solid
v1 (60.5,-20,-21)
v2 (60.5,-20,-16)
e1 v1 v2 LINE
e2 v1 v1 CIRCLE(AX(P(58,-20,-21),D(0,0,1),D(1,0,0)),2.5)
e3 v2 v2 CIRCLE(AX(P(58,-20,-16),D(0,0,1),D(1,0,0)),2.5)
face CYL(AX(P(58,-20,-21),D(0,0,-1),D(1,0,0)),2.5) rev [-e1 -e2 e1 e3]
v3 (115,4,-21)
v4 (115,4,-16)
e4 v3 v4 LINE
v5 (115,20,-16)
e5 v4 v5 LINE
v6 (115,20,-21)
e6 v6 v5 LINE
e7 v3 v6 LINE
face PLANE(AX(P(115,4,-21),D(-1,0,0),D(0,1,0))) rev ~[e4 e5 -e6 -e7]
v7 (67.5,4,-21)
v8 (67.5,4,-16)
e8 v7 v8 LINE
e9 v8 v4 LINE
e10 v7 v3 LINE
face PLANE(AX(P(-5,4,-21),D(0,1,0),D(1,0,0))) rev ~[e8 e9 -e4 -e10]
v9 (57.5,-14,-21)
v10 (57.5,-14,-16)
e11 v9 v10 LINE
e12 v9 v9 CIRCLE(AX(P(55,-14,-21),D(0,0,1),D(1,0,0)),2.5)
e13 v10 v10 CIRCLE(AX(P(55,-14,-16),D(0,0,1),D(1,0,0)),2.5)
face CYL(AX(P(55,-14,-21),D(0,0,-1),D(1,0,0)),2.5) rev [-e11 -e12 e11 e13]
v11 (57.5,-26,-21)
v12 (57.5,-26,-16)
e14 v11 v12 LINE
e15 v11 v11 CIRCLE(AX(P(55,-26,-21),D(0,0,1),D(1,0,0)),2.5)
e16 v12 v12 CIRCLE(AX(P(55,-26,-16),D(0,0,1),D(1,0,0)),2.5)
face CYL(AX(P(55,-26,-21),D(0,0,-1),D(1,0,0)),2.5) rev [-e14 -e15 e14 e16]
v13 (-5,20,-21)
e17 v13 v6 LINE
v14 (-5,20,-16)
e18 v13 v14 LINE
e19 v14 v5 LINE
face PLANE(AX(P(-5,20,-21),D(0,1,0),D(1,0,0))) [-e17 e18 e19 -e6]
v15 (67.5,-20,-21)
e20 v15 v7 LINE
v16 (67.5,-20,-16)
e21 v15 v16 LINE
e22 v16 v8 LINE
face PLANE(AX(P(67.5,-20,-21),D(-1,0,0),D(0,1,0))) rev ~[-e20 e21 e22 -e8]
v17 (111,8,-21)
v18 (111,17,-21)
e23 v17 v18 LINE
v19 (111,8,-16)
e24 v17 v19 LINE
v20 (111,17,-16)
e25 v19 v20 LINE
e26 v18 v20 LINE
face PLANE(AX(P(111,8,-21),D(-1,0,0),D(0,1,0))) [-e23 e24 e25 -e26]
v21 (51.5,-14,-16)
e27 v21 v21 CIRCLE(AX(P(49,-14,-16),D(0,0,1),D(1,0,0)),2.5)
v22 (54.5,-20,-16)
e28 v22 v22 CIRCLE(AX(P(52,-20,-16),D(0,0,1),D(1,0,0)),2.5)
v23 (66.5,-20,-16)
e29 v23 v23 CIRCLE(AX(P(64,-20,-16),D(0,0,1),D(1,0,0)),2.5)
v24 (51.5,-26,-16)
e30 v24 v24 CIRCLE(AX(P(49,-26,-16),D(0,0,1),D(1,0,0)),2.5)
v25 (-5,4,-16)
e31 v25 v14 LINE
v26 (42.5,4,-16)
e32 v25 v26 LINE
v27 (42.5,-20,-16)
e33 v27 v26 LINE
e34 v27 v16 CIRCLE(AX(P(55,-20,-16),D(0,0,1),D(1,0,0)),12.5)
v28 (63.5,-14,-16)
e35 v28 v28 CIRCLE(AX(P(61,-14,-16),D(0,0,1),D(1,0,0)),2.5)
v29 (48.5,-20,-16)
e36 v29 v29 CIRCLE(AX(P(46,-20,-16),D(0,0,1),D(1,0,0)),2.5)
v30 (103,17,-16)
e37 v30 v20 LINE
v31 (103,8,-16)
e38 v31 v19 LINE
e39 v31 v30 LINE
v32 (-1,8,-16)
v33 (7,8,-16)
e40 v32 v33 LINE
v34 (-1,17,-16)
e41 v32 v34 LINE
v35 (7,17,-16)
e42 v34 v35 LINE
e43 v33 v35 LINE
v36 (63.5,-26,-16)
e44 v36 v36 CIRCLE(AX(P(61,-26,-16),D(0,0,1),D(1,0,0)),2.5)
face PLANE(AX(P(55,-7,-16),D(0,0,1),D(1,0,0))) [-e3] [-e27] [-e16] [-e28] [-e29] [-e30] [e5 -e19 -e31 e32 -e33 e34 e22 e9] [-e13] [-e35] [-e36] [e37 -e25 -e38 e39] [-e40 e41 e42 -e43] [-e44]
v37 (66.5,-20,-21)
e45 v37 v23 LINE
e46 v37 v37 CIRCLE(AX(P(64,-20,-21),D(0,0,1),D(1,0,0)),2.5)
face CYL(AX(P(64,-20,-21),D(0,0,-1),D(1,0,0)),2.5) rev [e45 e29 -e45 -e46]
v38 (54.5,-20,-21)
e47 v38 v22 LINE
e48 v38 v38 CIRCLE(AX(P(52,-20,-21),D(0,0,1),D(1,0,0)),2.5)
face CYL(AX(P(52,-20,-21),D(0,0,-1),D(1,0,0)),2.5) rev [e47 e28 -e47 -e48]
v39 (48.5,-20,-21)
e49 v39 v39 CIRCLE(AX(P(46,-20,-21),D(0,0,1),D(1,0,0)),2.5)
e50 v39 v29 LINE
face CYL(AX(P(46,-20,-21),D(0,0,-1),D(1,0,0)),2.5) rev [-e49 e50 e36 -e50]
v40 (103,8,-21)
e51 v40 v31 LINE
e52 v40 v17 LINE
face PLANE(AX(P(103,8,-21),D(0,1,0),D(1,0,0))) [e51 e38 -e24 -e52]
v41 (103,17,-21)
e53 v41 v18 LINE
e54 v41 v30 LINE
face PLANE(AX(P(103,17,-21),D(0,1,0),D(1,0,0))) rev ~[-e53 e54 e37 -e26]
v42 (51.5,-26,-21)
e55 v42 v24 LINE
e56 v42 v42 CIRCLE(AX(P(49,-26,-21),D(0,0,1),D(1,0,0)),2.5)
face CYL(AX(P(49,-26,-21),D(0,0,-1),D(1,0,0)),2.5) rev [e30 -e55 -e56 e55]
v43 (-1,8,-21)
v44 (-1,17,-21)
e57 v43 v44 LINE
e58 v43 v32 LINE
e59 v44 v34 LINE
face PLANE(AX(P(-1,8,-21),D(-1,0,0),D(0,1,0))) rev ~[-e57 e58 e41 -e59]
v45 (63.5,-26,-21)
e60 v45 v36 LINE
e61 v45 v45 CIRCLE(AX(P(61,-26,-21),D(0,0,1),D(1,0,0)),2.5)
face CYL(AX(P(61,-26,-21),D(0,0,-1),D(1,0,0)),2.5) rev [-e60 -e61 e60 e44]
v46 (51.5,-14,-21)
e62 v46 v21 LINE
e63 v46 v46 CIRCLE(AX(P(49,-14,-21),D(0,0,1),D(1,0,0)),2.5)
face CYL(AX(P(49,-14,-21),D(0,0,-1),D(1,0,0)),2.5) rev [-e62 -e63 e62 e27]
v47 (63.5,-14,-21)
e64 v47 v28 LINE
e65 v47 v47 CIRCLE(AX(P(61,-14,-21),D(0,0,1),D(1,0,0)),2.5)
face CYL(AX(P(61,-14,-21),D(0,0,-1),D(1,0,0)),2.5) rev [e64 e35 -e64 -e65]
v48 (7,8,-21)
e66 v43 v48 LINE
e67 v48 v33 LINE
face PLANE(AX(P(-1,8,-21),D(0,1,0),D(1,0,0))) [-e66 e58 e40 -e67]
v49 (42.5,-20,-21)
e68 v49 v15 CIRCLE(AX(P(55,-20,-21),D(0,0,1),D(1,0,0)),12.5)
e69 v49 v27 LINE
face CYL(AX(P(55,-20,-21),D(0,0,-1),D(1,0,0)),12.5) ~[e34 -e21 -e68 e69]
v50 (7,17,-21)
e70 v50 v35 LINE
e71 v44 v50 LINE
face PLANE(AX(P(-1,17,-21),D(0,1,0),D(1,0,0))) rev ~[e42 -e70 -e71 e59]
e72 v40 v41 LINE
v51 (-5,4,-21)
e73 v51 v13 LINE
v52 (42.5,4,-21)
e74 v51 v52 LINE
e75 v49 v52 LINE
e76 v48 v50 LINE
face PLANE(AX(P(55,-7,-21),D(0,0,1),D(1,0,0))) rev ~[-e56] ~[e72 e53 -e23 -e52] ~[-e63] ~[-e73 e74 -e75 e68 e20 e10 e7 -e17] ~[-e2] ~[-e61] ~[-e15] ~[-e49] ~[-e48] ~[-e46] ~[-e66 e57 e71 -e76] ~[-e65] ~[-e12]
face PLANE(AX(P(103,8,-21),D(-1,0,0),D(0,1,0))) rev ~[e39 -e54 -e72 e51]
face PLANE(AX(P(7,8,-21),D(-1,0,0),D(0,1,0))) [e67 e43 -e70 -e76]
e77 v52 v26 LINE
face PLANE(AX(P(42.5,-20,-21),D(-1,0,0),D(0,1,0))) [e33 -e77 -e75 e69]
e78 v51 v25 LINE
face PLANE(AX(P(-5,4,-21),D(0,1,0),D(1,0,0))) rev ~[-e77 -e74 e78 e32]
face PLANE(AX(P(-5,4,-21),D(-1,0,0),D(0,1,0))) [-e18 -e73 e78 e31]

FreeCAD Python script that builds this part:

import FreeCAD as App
import Part
import Sketcher

V = App.Vector
Q = App.Units.Quantity


def add_polygon(sketch, points):
    """Adds a closed chain of lines whose ends are joined by coincident constraints."""
    first, n = sketch.GeometryCount, len(points)
    for a, b in zip(points, points[1:] + points[:1]):
        sketch.addGeometry(Part.LineSegment(App.Vector(*a, 0), App.Vector(*b, 0)), False)
    for i in range(n):
        sketch.addConstraint(Sketcher.Constraint("Coincident", first + i, 2, first + (i + 1) % n, 1))

doc = App.newDocument("Part")
body = doc.addObject("PartDesign::Body", "Body")

# Sketch on XY plane
sketch1 = doc.addObject("Sketcher::SketchObject", "Sketch")
body.addObject(sketch1)
sketch1.AttachmentSupport = (doc.XY_Plane, [""])
sketch1.MapMode = "FlatFace"
add_polygon(sketch1, [(103, 17), (103, 8), (111, 8), (111, 17)])  # lines 0-3
sketch1.addConstraint([
    Sketcher.Constraint("Vertical", 0),
    Sketcher.Constraint("Horizontal", 1),
    Sketcher.Constraint("Vertical", 2),
    Sketcher.Constraint("Horizontal", 3),
    Sketcher.Constraint("DistanceX", 1, 1, 1, 2, Q("8 mm")),
    Sketcher.Constraint("DistanceY", 0, 2, 0, 1, Q("9 mm")),
    Sketcher.Constraint("DistanceX", -1, 1, 0, 2, Q("103 mm")),
    Sketcher.Constraint("DistanceY", -1, 1, 0, 2, Q("8 mm")),
])
pad1 = doc.addObject("PartDesign::Pad", "Pad")
body.addObject(pad1)
pad1.Profile = sketch1
pad1.Length = 5
body2 = doc.addObject("PartDesign::Body", "Body001")

# Sketch on XY plane
sketch2 = doc.addObject("Sketcher::SketchObject", "Sketch001")
body2.addObject(sketch2)
sketch2.AttachmentSupport = (doc.getObject("XY_Plane001"), [""])
sketch2.MapMode = "FlatFace"
add_polygon(sketch2, [(-1, 17), (-1, 8), (7, 8), (7, 17)])  # lines 0-3
sketch2.addConstraint([
    Sketcher.Constraint("Vertical", 0),
    Sketcher.Constraint("Horizontal", 1),
    Sketcher.Constraint("Vertical", 2),
    Sketcher.Constraint("Horizontal", 3),
    Sketcher.Constraint("DistanceX", 1, 1, 1, 2, Q("8 mm")),
    Sketcher.Constraint("DistanceY", 0, 2, 0, 1, Q("9 mm")),
    Sketcher.Constraint("DistanceX", 0, 2, -1, 1, Q("1 mm")),
    Sketcher.Constraint("DistanceY", -1, 1, 0, 2, Q("8 mm")),
])
pad2 = doc.addObject("PartDesign::Pad", "Pad001")
body2.addObject(pad2)
pad2.Profile = sketch2
pad2.Length = 5
body3 = doc.addObject("PartDesign::Body", "Body002")

# Sketch on XY plane
sketch3 = doc.addObject("Sketcher::SketchObject", "Sketch002")
body3.addObject(sketch3)
sketch3.AttachmentSupport = (doc.getObject("XY_Plane002"), [""])
sketch3.MapMode = "FlatFace"
sketch3.addGeometry(Part.Circle(V(6, -6, 0), V(0, 0, 1), 2.5), False)
sketch3.addConstraint([
    Sketcher.Constraint("Diameter", 0, Q("5 mm")),
    Sketcher.Constraint("DistanceX", -1, 1, 0, 3, Q("6 mm")),
    Sketcher.Constraint("DistanceY", 0, 3, -1, 1, Q("6 mm")),
])
pad3 = doc.addObject("PartDesign::Pad", "Pad002")
body3.addObject(pad3)
pad3.Profile = sketch3
pad3.Length = 5
body4 = doc.addObject("PartDesign::Body", "Body003")

# Sketch on XY plane
sketch4 = doc.addObject("Sketcher::SketchObject", "Sketch003")
body4.addObject(sketch4)
sketch4.AttachmentSupport = (doc.getObject("XY_Plane003"), [""])
sketch4.MapMode = "FlatFace"
sketch4.addGeometry(Part.Circle(V(-6, -6, 0), V(0, 0, 1), 2.5), False)
sketch4.addConstraint([
    Sketcher.Constraint("Diameter", 0, Q("5 mm")),
    Sketcher.Constraint("DistanceX", 0, 3, -1, 1, Q("6 mm")),
    Sketcher.Constraint("DistanceY", 0, 3, -1, 1, Q("6 mm")),
])
pad4 = doc.addObject("PartDesign::Pad", "Pad003")
body4.addObject(pad4)
pad4.Profile = sketch4
pad4.Length = 5
body5 = doc.addObject("PartDesign::Body", "Body004")

# Sketch on XY plane
sketch5 = doc.addObject("Sketcher::SketchObject", "Sketch004")
body5.addObject(sketch5)
sketch5.AttachmentSupport = (doc.getObject("XY_Plane004"), [""])
sketch5.MapMode = "FlatFace"
sketch5.addGeometry(Part.Circle(V(0, -6, 0), V(0, 0, 1), 2.5), False)
sketch5.addConstraint([
    Sketcher.Constraint("PointOnObject", 0, 3, -2),
    Sketcher.Constraint("Diameter", 0, Q("5 mm")),
    Sketcher.Constraint("DistanceY", 0, 3, -1, 1, Q("6 mm")),
])
pad5 = doc.addObject("PartDesign::Pad", "Pad004")
body5.addObject(pad5)
pad5.Profile = sketch5
pad5.Length = 5
body6 = doc.addObject("PartDesign::Body", "Body005")

# Sketch on XY plane
sketch6 = doc.addObject("Sketcher::SketchObject", "Sketch005")
body6.addObject(sketch6)
sketch6.AttachmentSupport = (doc.getObject("XY_Plane005"), [""])
sketch6.MapMode = "FlatFace"
sketch6.addGeometry(Part.Circle(V(0, 6, 0), V(0, 0, 1), 2.5), False)
sketch6.addConstraint([
    Sketcher.Constraint("PointOnObject", 0, 3, -2),
    Sketcher.Constraint("Diameter", 0, Q("5 mm")),
    Sketcher.Constraint("DistanceY", -1, 1, 0, 3, Q("6 mm")),
])
pad6 = doc.addObject("PartDesign::Pad", "Pad005")
body6.addObject(pad6)
pad6.Profile = sketch6
pad6.Length = 5
body7 = doc.addObject("PartDesign::Body", "Body006")

# Sketch on XY plane
sketch7 = doc.addObject("Sketcher::SketchObject", "Sketch006")
body7.addObject(sketch7)
sketch7.AttachmentSupport = (doc.getObject("XY_Plane006"), [""])
sketch7.MapMode = "FlatFace"
sketch7.addGeometry(Part.Circle(V(-3, 0, 0), V(0, 0, 1), 2.5), False)
sketch7.addConstraint([
    Sketcher.Constraint("PointOnObject", 0, 3, -1),
    Sketcher.Constraint("Diameter", 0, Q("5 mm")),
    Sketcher.Constraint("DistanceX", 0, 3, -1, 1, Q("3 mm")),
])
pad7 = doc.addObject("PartDesign::Pad", "Pad006")
body7.addObject(pad7)
pad7.Profile = sketch7
pad7.Length = 5
body8 = doc.addObject("PartDesign::Body", "Body007")

# Sketch on XY plane
sketch8 = doc.addObject("Sketcher::SketchObject", "Sketch007")
body8.addObject(sketch8)
sketch8.AttachmentSupport = (doc.getObject("XY_Plane007"), [""])
sketch8.MapMode = "FlatFace"
sketch8.addGeometry(Part.Circle(V(3, 0, 0), V(0, 0, 1), 2.5), False)
sketch8.addConstraint([
    Sketcher.Constraint("PointOnObject", 0, 3, -1),
    Sketcher.Constraint("Diameter", 0, Q("5 mm")),
    Sketcher.Constraint("DistanceX", -1, 1, 0, 3, Q("3 mm")),
])
pad8 = doc.addObject("PartDesign::Pad", "Pad007")
body8.addObject(pad8)
pad8.Profile = sketch8
pad8.Length = 5
body9 = doc.addObject("PartDesign::Body", "Body008")

# Sketch on XY plane
sketch9 = doc.addObject("Sketcher::SketchObject", "Sketch008")
body9.addObject(sketch9)
sketch9.AttachmentSupport = (doc.getObject("XY_Plane008"), [""])
sketch9.MapMode = "FlatFace"
sketch9.addGeometry(Part.Circle(V(9, 0, 0), V(0, 0, 1), 2.5), False)
sketch9.addConstraint([
    Sketcher.Constraint("PointOnObject", 0, 3, -1),
    Sketcher.Constraint("Diameter", 0, Q("5 mm")),
    Sketcher.Constraint("DistanceX", -1, 1, 0, 3, Q("9 mm")),
])
pad9 = doc.addObject("PartDesign::Pad", "Pad008")
body9.addObject(pad9)
pad9.Profile = sketch9
pad9.Length = 5
body10 = doc.addObject("PartDesign::Body", "Body009")

# Sketch on XY plane
sketch10 = doc.addObject("Sketcher::SketchObject", "Sketch009")
body10.addObject(sketch10)
sketch10.AttachmentSupport = (doc.getObject("XY_Plane009"), [""])
sketch10.MapMode = "FlatFace"
sketch10.addGeometry(Part.Circle(V(-9, 0, 0), V(0, 0, 1), 2.5), False)
sketch10.addConstraint([
    Sketcher.Constraint("PointOnObject", 0, 3, -1),
    Sketcher.Constraint("Diameter", 0, Q("5 mm")),
    Sketcher.Constraint("DistanceX", 0, 3, -1, 1, Q("9 mm")),
])
pad10 = doc.addObject("PartDesign::Pad", "Pad009")
body10.addObject(pad10)
pad10.Profile = sketch10
pad10.Length = 5
body11 = doc.addObject("PartDesign::Body", "Body010")

# Sketch on XY plane
sketch11 = doc.addObject("Sketcher::SketchObject", "Sketch010")
body11.addObject(sketch11)
sketch11.AttachmentSupport = (doc.getObject("XY_Plane010"), [""])
sketch11.MapMode = "FlatFace"
sketch11.addGeometry(Part.Circle(V(-6, 6, 0), V(0, 0, 1), 2.5), False)
sketch11.addConstraint([
    Sketcher.Constraint("Diameter", 0, Q("5 mm")),
    Sketcher.Constraint("DistanceX", 0, 3, -1, 1, Q("6 mm")),
    Sketcher.Constraint("DistanceY", -1, 1, 0, 3, Q("6 mm")),
])
pad11 = doc.addObject("PartDesign::Pad", "Pad010")
body11.addObject(pad11)
pad11.Profile = sketch11
pad11.Length = 5
body12 = doc.addObject("PartDesign::Body", "Body011")
body12.AllowCompound = True

# Sketch on XY plane
sketch12 = doc.addObject("Sketcher::SketchObject", "Sketch011")
body12.addObject(sketch12)
sketch12.AttachmentSupport = (doc.getObject("XY_Plane011"), [""])
sketch12.MapMode = "FlatFace"
sketch12.addGeometry(Part.Circle(V(6, 6, 0), V(0, 0, 1), 2.5), False)
sketch12.addConstraint([
    Sketcher.Constraint("Diameter", 0, Q("5 mm")),
    Sketcher.Constraint("DistanceX", -1, 1, 0, 3, Q("6 mm")),
    Sketcher.Constraint("DistanceY", -1, 1, 0, 3, Q("6 mm")),
])
pad12 = doc.addObject("PartDesign::Pad", "Pad011")
body12.addObject(pad12)
pad12.Profile = sketch12
pad12.Length = 5
doc.recompute()

boolean = doc.addObject("PartDesign::Boolean", "Boolean")
body12.addObject(boolean)
boolean.Type = "Fuse"
boolean.addObjects([body3])
doc.recompute()

boolean2 = doc.addObject("PartDesign::Boolean", "Boolean001")
body12.addObject(boolean2)
boolean2.Type = "Fuse"
boolean2.addObjects([body4])
doc.recompute()

boolean3 = doc.addObject("PartDesign::Boolean", "Boolean002")
body12.addObject(boolean3)
boolean3.Type = "Fuse"
boolean3.addObjects([body5])
doc.recompute()

boolean4 = doc.addObject("PartDesign::Boolean", "Boolean003")
body12.addObject(boolean4)
boolean4.Type = "Fuse"
boolean4.addObjects([body6])
doc.recompute()

boolean5 = doc.addObject("PartDesign::Boolean", "Boolean004")
body12.addObject(boolean5)
boolean5.Type = "Fuse"
boolean5.addObjects([body7])
doc.recompute()

boolean6 = doc.addObject("PartDesign::Boolean", "Boolean005")
body12.addObject(boolean6)
boolean6.Type = "Fuse"
boolean6.addObjects([body8])
doc.recompute()

boolean7 = doc.addObject("PartDesign::Boolean", "Boolean006")
body12.addObject(boolean7)
boolean7.Type = "Fuse"
boolean7.addObjects([body9])
doc.recompute()

boolean8 = doc.addObject("PartDesign::Boolean", "Boolean007")
body12.addObject(boolean8)
boolean8.Type = "Fuse"
boolean8.addObjects([body10])
doc.recompute()

boolean9 = doc.addObject("PartDesign::Boolean", "Boolean008")
body12.addObject(boolean9)
boolean9.Type = "Fuse"
boolean9.addObjects([body11])
body13 = doc.addObject("PartDesign::Body", "Body012")
body13.AllowCompound = True
doc.recompute()

body12.Placement = App.Placement(V(55, -20, 0), App.Rotation(V(0, 0, 1), 0))
boolean10 = doc.addObject("PartDesign::Boolean", "Boolean009")
body13.addObject(boolean10)
boolean10.Type = "Fuse"
boolean10.addObjects([body12])
doc.recompute()

boolean11 = doc.addObject("PartDesign::Boolean", "Boolean010")
body13.addObject(boolean11)
boolean11.Type = "Fuse"
boolean11.addObjects([body])
doc.recompute()

boolean12 = doc.addObject("PartDesign::Boolean", "Boolean011")
body13.addObject(boolean12)
boolean12.Type = "Fuse"
boolean12.addObjects([body2])
body14 = doc.addObject("PartDesign::Body", "Body013")

# Sketch on XY plane
sketch13 = doc.addObject("Sketcher::SketchObject", "Sketch012")
body14.addObject(sketch13)
sketch13.AttachmentSupport = (doc.getObject("XY_Plane013"), [""])
sketch13.MapMode = "FlatFace"
add_polygon(sketch13, [(42.5, 6), (42.5, -20), (67.5, -20), (67.5, 6)])  # lines 0-3
sketch13.addConstraint([
    Sketcher.Constraint("Vertical", 0),
    Sketcher.Constraint("Horizontal", 1),
    Sketcher.Constraint("Vertical", 2),
    Sketcher.Constraint("Horizontal", 3),
    Sketcher.Constraint("DistanceX", 1, 1, 1, 2, Q("25 mm")),
    Sketcher.Constraint("DistanceY", 0, 2, 0, 1, Q("26 mm")),
    Sketcher.Constraint("DistanceY", 0, 2, -1, 1, Q("20 mm")),
    Sketcher.Constraint("DistanceX", -1, 1, 0, 2, Q("42.5 mm")),
])
pad13 = doc.addObject("PartDesign::Pad", "Pad012")
body14.addObject(pad13)
pad13.Profile = sketch13
pad13.Length = 5
body15 = doc.addObject("PartDesign::Body", "Body014")

# Sketch on XY plane
sketch14 = doc.addObject("Sketcher::SketchObject", "Sketch013")
body15.addObject(sketch14)
sketch14.AttachmentSupport = (doc.getObject("XY_Plane014"), [""])
sketch14.MapMode = "FlatFace"
sketch14.addGeometry(Part.Circle(V(55, -20, 0), V(0, 0, 1), 12.5), False)
sketch14.addConstraint([
    Sketcher.Constraint("Diameter", 0, Q("25 mm")),
    Sketcher.Constraint("DistanceX", -1, 1, 0, 3, Q("55 mm")),
    Sketcher.Constraint("DistanceY", 0, 3, -1, 1, Q("20 mm")),
])
pad14 = doc.addObject("PartDesign::Pad", "Pad013")
body15.addObject(pad14)
pad14.Profile = sketch14
pad14.Length = 5
body16 = doc.addObject("PartDesign::Body", "Body015")

# Sketch on XY plane
sketch15 = doc.addObject("Sketcher::SketchObject", "Sketch014")
body16.addObject(sketch15)
sketch15.AttachmentSupport = (doc.getObject("XY_Plane015"), [""])
sketch15.MapMode = "FlatFace"
add_polygon(sketch15, [(-5, 20), (-5, 4), (115, 4), (115, 20)])  # lines 0-3
sketch15.addConstraint([
    Sketcher.Constraint("Vertical", 0),
    Sketcher.Constraint("Horizontal", 1),
    Sketcher.Constraint("Vertical", 2),
    Sketcher.Constraint("Horizontal", 3),
    Sketcher.Constraint("DistanceX", 1, 1, 1, 2, Q("120 mm")),
    Sketcher.Constraint("DistanceY", 0, 2, 0, 1, Q("16 mm")),
    Sketcher.Constraint("DistanceX", 0, 2, -1, 1, Q("5 mm")),
    Sketcher.Constraint("DistanceY", -1, 1, 0, 2, Q("4 mm")),
])
pad15 = doc.addObject("PartDesign::Pad", "Pad014")
body16.addObject(pad15)
pad15.Profile = sketch15
pad15.Length = 5
doc.recompute()

boolean13 = doc.addObject("PartDesign::Boolean", "Boolean012")
body16.addObject(boolean13)
boolean13.Type = "Fuse"
boolean13.addObjects([body14])
doc.recompute()

boolean14 = doc.addObject("PartDesign::Boolean", "Boolean013")
body16.addObject(boolean14)
boolean14.Type = "Fuse"
boolean14.addObjects([body15])
doc.recompute()

boolean15 = doc.addObject("PartDesign::Boolean", "Boolean014")
body16.addObject(boolean15)
boolean15.Type = "Cut"
boolean15.addObjects([body13])
body17 = doc.addObject("PartDesign::Body", "Body016")
doc.recompute()

body16.Placement = App.Placement(V(0, 0, -21), App.Rotation(V(0, 0, 1), 0))
boolean16 = doc.addObject("PartDesign::Boolean", "Boolean015")
body17.addObject(boolean16)
boolean16.Type = "Fuse"
boolean16.addObjects([body16])

doc.recompute()
